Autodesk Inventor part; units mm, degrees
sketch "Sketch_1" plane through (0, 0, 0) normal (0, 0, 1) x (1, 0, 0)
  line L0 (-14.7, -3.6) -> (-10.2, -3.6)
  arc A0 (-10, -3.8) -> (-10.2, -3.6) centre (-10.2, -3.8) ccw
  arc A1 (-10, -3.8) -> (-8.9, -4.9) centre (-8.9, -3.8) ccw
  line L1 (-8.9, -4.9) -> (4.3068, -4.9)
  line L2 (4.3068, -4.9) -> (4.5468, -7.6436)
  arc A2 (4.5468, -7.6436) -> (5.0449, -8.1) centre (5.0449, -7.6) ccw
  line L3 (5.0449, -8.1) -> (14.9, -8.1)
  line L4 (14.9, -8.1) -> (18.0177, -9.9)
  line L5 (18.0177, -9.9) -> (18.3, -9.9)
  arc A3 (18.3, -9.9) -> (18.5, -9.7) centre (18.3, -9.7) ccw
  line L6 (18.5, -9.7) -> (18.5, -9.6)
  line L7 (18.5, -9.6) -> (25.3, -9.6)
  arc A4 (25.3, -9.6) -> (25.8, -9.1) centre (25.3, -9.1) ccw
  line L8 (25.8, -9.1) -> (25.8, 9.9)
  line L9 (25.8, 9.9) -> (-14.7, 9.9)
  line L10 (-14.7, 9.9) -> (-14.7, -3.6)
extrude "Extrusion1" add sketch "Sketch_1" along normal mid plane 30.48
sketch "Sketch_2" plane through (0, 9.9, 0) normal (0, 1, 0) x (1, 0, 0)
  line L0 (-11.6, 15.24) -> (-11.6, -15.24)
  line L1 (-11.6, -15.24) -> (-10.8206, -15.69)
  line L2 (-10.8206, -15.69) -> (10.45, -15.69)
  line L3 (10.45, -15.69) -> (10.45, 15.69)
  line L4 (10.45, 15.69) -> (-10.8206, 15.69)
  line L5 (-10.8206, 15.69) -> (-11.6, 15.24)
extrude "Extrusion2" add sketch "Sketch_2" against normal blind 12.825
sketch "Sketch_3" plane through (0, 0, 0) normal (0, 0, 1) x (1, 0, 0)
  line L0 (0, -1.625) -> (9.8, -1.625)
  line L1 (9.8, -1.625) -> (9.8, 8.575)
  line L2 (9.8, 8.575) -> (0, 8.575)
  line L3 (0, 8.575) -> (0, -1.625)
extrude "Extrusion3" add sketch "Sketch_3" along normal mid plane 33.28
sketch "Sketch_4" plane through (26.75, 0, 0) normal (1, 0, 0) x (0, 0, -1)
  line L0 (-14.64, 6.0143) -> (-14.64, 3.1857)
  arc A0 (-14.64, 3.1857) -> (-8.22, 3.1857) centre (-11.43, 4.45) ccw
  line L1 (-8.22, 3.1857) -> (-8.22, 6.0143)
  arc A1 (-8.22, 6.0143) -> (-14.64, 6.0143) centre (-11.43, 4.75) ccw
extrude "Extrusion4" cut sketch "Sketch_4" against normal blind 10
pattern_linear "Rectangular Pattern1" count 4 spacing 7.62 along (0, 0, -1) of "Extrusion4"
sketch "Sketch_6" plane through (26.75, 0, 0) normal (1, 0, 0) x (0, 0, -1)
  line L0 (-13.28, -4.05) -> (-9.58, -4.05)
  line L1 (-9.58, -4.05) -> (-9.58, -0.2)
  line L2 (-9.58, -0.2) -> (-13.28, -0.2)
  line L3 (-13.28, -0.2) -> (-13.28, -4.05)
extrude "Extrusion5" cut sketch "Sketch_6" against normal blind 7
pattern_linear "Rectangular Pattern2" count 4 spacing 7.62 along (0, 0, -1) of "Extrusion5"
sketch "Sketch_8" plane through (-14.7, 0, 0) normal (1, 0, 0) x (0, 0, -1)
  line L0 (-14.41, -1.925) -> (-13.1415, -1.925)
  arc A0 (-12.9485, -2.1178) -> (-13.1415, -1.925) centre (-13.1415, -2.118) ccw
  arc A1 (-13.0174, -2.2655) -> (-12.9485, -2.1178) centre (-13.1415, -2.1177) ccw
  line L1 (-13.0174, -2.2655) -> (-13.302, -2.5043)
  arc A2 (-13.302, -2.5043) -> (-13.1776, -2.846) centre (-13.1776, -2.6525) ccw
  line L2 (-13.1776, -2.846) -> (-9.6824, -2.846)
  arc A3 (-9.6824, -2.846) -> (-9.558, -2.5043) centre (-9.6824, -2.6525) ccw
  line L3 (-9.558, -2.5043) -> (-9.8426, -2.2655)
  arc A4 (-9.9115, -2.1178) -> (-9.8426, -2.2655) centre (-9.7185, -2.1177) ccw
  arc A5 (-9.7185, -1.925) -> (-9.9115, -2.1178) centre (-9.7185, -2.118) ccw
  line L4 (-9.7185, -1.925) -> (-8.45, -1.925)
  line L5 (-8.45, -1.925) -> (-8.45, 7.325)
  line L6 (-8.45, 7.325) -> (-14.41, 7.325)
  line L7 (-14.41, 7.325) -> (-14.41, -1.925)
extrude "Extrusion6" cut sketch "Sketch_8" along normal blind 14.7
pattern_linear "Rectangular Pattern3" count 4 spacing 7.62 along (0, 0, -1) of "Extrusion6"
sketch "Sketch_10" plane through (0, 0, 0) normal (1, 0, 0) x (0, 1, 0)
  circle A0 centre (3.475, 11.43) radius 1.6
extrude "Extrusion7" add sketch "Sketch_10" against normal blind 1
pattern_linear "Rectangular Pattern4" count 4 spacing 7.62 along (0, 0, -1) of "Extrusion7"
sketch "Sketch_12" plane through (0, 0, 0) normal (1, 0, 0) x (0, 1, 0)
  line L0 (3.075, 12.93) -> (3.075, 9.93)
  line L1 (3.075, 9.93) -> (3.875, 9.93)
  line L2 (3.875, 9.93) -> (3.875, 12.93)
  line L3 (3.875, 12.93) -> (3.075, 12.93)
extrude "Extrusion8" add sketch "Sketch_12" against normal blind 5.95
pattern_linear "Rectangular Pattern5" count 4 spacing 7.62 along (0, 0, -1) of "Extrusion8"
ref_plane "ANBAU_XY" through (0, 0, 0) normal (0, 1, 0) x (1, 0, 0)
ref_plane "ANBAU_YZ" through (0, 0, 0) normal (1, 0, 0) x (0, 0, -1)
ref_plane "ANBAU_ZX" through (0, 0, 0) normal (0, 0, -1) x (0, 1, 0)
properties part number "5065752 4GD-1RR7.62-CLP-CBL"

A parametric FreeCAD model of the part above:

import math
import FreeCAD as App
import Part
import Sketcher

V = App.Vector
Q = App.Units.Quantity

doc = App.newDocument("Part")
params = doc.addObject("Spreadsheet::Sheet", "Params")
for row, (alias, value) in enumerate([
    ("sketch1_radius", "0.2 mm"),
    ("sketch1_radius2", "1.1 mm"),
    ("sketch1_radius3", "0.5 mm"),
    ("sketch1_height", "19 mm"),
    ("sketch1_width", "4.5 mm"),
    ("pad1_length", "30.48 mm"),
    ("sketch2_length", "0.9 mm"),
    ("sketch2_height", "30.48 mm"),
    ("pad2_length", "12.825 mm"),
    ("sketch3_width", "9.8 mm"),
    ("sketch3_height", "10.2 mm"),
    ("pad3_length", "33.28 mm"),
    ("sketch4_radius", "3.45 mm"),
    ("pocket1_length", "10 mm"),
    ("linearpattern_pitch", "7.62 mm"),
    ("sketch5_height", "3.7 mm"),
    ("sketch5_width", "3.85 mm"),
    ("pocket2_length", "7 mm"),
    ("linearpattern2_pitch", "7.62 mm"),
    ("sketch6_width", "9.25 mm"),
    ("sketch6_height", "5.96 mm"),
    ("pocket3_length", "14.7 mm"),
    ("linearpattern3_pitch", "7.62 mm"),
    ("sketch7_diameter", "3.2 mm"),
    ("pad4_length", "1 mm"),
    ("linearpattern4_pitch", "7.62 mm"),
    ("sketch8_height", "3 mm"),
    ("sketch8_width", "0.8 mm"),
    ("pad5_length", "5.95 mm"),
    ("linearpattern5_pitch", "7.62 mm"),
], start=1):
    params.set(f"A{row}", alias)
    params.set(f"B{row}", "=" + value)
    params.setAlias(f"B{row}", alias)

body = doc.addObject("PartDesign::Body", "Body")

sketch1 = body.newObject("Sketcher::SketchObject", "Sketch")
sketch1.AttachmentSupport = (doc.getObject("XY_Plane"), [""])
sketch1.MapMode = "FlatFace"
sketch1.addGeometry([
    Part.LineSegment(V(-14.7, 9.9, 0), V(-14.7, -3.6, 0)),
    Part.LineSegment(V(-14.7, -3.6, 0), V(-10.2, -3.6, 0)),
    Part.ArcOfCircle(Part.Circle(V(-10.2, -3.8, 0), V(0, 0, 1), 0.2), math.radians(0), math.radians(90)),
    Part.ArcOfCircle(Part.Circle(V(-8.9, -3.8, 0), V(0, 0, 1), 1.1), math.radians(180), math.radians(270)),
    Part.LineSegment(V(-8.9, -4.9, 0), V(4.31, -4.9, 0)),
    Part.LineSegment(V(4.31, -4.9, 0), V(4.55, -7.64, 0)),
    Part.ArcOfCircle(Part.Circle(V(5.04, -7.6, 0), V(0, 0, 1), 0.5), math.radians(-175), math.radians(-90)),
    Part.LineSegment(V(5.04, -8.1, 0), V(14.9, -8.1, 0)),
    Part.LineSegment(V(14.9, -8.1, 0), V(18.02, -9.9, 0)),
    Part.LineSegment(V(18.02, -9.9, 0), V(18.3, -9.9, 0)),
    Part.ArcOfCircle(Part.Circle(V(18.3, -9.7, 0), V(0, 0, 1), 0.2), math.radians(-90), math.radians(0)),
    Part.LineSegment(V(18.5, -9.7, 0), V(18.5, -9.6, 0)),
    Part.LineSegment(V(18.5, -9.6, 0), V(25.3, -9.6, 0)),
    Part.ArcOfCircle(Part.Circle(V(25.3, -9.1, 0), V(0, 0, 1), 0.5), math.radians(-90), math.radians(0)),
    Part.LineSegment(V(25.8, -9.1, 0), V(25.8, 9.9, 0)),
    Part.LineSegment(V(25.8, 9.9, 0), V(-14.7, 9.9, 0)),
], False)
sketch1.addConstraint([
    Sketcher.Constraint("Coincident", 0, 2, 1, 1),
    Sketcher.Constraint("Tangent", 1, 2, 2, 2),
    Sketcher.Constraint("Tangent", 2, 1, 3, 1),
    Sketcher.Constraint("Tangent", 3, 2, 4, 1),
    Sketcher.Constraint("Coincident", 4, 2, 5, 1),
    Sketcher.Constraint("Tangent", 5, 2, 6, 1),
    Sketcher.Constraint("Tangent", 6, 2, 7, 1),
    Sketcher.Constraint("Coincident", 7, 2, 8, 1),
    Sketcher.Constraint("Coincident", 8, 2, 9, 1),
    Sketcher.Constraint("Tangent", 9, 2, 10, 1),
    Sketcher.Constraint("Tangent", 10, 2, 11, 1),
    Sketcher.Constraint("Coincident", 11, 2, 12, 1),
    Sketcher.Constraint("Tangent", 12, 2, 13, 1),
    Sketcher.Constraint("Tangent", 13, 2, 14, 1),
    Sketcher.Constraint("Coincident", 14, 2, 15, 1),
    Sketcher.Constraint("Coincident", 15, 2, 0, 1),
    Sketcher.Constraint("Vertical", 0),
    Sketcher.Constraint("Horizontal", 1),
    Sketcher.Constraint("Horizontal", 4),
    Sketcher.Constraint("Horizontal", 7),
    Sketcher.Constraint("Horizontal", 9),
    Sketcher.Constraint("Vertical", 11),
    Sketcher.Constraint("Horizontal", 12),
    Sketcher.Constraint("Vertical", 14),
    Sketcher.Constraint("Horizontal", 15),
    Sketcher.Constraint("Equal", 2, 10),
    Sketcher.Constraint("Equal", 6, 13),
    Sketcher.Constraint("Horizontal", 2, 3, 3, 3),
    Sketcher.Constraint("Radius", 2, 0.2),
    Sketcher.Constraint("Radius", 3, 1.1),
    Sketcher.Constraint("Radius", 6, 0.5),
    Sketcher.Constraint("DistanceY", 14, 1, 14, 2, 19.0),
    Sketcher.Constraint("Angle", 5, Q("-85.0007 deg")),
    Sketcher.Constraint("Angle", 8, Q("-30 deg")),
    Sketcher.Constraint("DistanceX", 1, 1, 1, 2, 4.5),
    Sketcher.Constraint("DistanceX", 12, 1, 12, 2, 6.8),
    Sketcher.Constraint("DistanceX", 15, 2, 15, 1, 40.5),
    Sketcher.Constraint("DistanceY", 0, 2, 0, 1, 13.5),
    Sketcher.Constraint("DistanceY", 11, 1, 11, 2, 0.1),
    Sketcher.Constraint("DistanceX", 2, 1, -1, 1, 10.0),
    Sketcher.Constraint("DistanceY", 6, 3, 0, 2, 4.0),
    Sketcher.Constraint("DistanceY", 2, 3, -1, 1, 3.8),
    Sketcher.Constraint("DistanceX", -1, 1, 7, 2, 14.9),
    Sketcher.Constraint("DistanceX", 7, 1, 7, 2, 9.855),
])
sketch1.setExpression("Constraints[28]", "Params.sketch1_radius")
sketch1.setExpression("Constraints[29]", "Params.sketch1_radius2")
sketch1.setExpression("Constraints[30]", "Params.sketch1_radius3")
sketch1.setExpression("Constraints[31]", "Params.sketch1_height")
sketch1.setExpression("Constraints[34]", "Params.sketch1_width")
pad1 = body.newObject("PartDesign::Pad", "Pad")
pad1.Profile = sketch1
pad1.setExpression("Length", "Params.pad1_length")
pad1.Midplane = True

sketch2 = body.newObject("Sketcher::SketchObject", "Sketch001")
sketch2.AttachmentSupport = (doc.getObject("XZ_Plane"), [""])
sketch2.MapMode = "FlatFace"
sketch2.AttachmentOffset = App.Placement(V(0, 0, -9.9), App.Rotation())
sketch2.addGeometry([
    Part.LineSegment(V(-10.8, -15.7, 0), V(-11.6, -15.2, 0)),
    Part.LineSegment(V(-11.6, -15.2, 0), V(-11.6, 15.2, 0)),
    Part.LineSegment(V(-11.6, 15.2, 0), V(-10.8, 15.7, 0)),
    Part.LineSegment(V(-10.8, 15.7, 0), V(10.4, 15.7, 0)),
    Part.LineSegment(V(10.4, 15.7, 0), V(10.4, -15.7, 0)),
    Part.LineSegment(V(10.4, -15.7, 0), V(-10.8, -15.7, 0)),
], False)
sketch2.addConstraint([
    Sketcher.Constraint("Coincident", 0, 2, 1, 1),
    Sketcher.Constraint("Coincident", 1, 2, 2, 1),
    Sketcher.Constraint("Coincident", 2, 2, 3, 1),
    Sketcher.Constraint("Coincident", 3, 2, 4, 1),
    Sketcher.Constraint("Coincident", 4, 2, 5, 1),
    Sketcher.Constraint("Coincident", 5, 2, 0, 1),
    Sketcher.Constraint("Vertical", 1),
    Sketcher.Constraint("Horizontal", 3),
    Sketcher.Constraint("Vertical", 4),
    Sketcher.Constraint("Horizontal", 5),
    Sketcher.Constraint("Symmetric", 2, 2, 5, 2, -1),
    Sketcher.Constraint("Equal", 0, 2),
    Sketcher.Constraint("Angle", 0, Q("149.9993 deg")),
    Sketcher.Constraint("Distance", 0, 0.9),
    Sketcher.Constraint("DistanceY", 1, 1, 1, 2, 30.48),
    Sketcher.Constraint("DistanceX", 0, 2, -1, 1, 11.6),
    Sketcher.Constraint("DistanceX", -1, 1, 3, 2, 10.45),
])
sketch2.setExpression("Constraints[13]", "Params.sketch2_length")
sketch2.setExpression("Constraints[14]", "Params.sketch2_height")
pad2 = body.newObject("PartDesign::Pad", "Pad001")
pad2.Profile = sketch2
pad2.setExpression("Length", "Params.pad2_length")

sketch3 = body.newObject("Sketcher::SketchObject", "Sketch002")
sketch3.AttachmentSupport = (doc.getObject("XY_Plane"), [""])
sketch3.MapMode = "FlatFace"
sketch3.addGeometry([
    Part.LineSegment(V(0, 9, 0), V(0, -2, 0)),
    Part.LineSegment(V(0, -2, 0), V(10, -2, 0)),
    Part.LineSegment(V(10, -2, 0), V(10, 9, 0)),
    Part.LineSegment(V(10, 9, 0), V(0, 9, 0)),
], False)
sketch3.addConstraint([
    Sketcher.Constraint("Coincident", 0, 2, 1, 1),
    Sketcher.Constraint("Coincident", 1, 2, 2, 1),
    Sketcher.Constraint("Coincident", 2, 2, 3, 1),
    Sketcher.Constraint("Coincident", 3, 2, 0, 1),
    Sketcher.Constraint("Vertical", 0),
    Sketcher.Constraint("Horizontal", 1),
    Sketcher.Constraint("Vertical", 2),
    Sketcher.Constraint("Horizontal", 3),
    Sketcher.Constraint("PointOnObject", 0, 2, -2),
    Sketcher.Constraint("DistanceX", 1, 1, 1, 2, 9.8),
    Sketcher.Constraint("DistanceY", 0, 2, 0, 1, 10.2),
    Sketcher.Constraint("DistanceY", 0, 2, -1, 1, 1.625),
])
sketch3.setExpression("Constraints[9]", "Params.sketch3_width")
sketch3.setExpression("Constraints[10]", "Params.sketch3_height")
pad3 = body.newObject("PartDesign::Pad", "Pad002")
pad3.Profile = sketch3
pad3.setExpression("Length", "Params.pad3_length")
pad3.Midplane = True

sketch4 = body.newObject("Sketcher::SketchObject", "Sketch003")
sketch4.AttachmentSupport = (doc.getObject("YZ_Plane"), [""])
sketch4.MapMode = "FlatFace"
sketch4.AttachmentOffset = App.Placement(V(0, 0, 26.75), App.Rotation())
sketch4.addGeometry([
    Part.ArcOfCircle(Part.Circle(V(4.8, 11.4, 0), V(0, 0, 1), 3.5), math.radians(-69), math.radians(69)),
    Part.LineSegment(V(6, 14.6, 0), V(3.2, 14.6, 0)),
    Part.ArcOfCircle(Part.Circle(V(4.5, 11.4, 0), V(0, 0, 1), 3.5), math.radians(111), math.radians(249)),
    Part.LineSegment(V(3.2, 8.2, 0), V(6, 8.2, 0)),
], False)
sketch4.addConstraint([
    Sketcher.Constraint("Coincident", 0, 2, 1, 1),
    Sketcher.Constraint("Coincident", 1, 2, 2, 1),
    Sketcher.Constraint("Coincident", 2, 2, 3, 1),
    Sketcher.Constraint("Coincident", 3, 2, 0, 1),
    Sketcher.Constraint("Horizontal", 1),
    Sketcher.Constraint("Horizontal", 3),
    Sketcher.Constraint("Equal", 0, 2),
    Sketcher.Constraint("Horizontal", 0, 3, 2, 3),
    Sketcher.Constraint("Vertical", 1, 2, 2, 2),
    Sketcher.Constraint("Radius", 0, 3.45),
    Sketcher.Constraint("DistanceX", 2, 3, 0, 3, 0.3),
    Sketcher.Constraint("DistanceX", -1, 1, 0, 3, 4.75),
    Sketcher.Constraint("DistanceY", -1, 1, 0, 3, 11.43),
    Sketcher.Constraint("DistanceY", -1, 1, 0, 2, 14.64),
])
sketch4.setExpression("Constraints[9]", "Params.sketch4_radius")
pocket1 = body.newObject("PartDesign::Pocket", "Pocket")
pocket1.Profile = sketch4
pocket1.setExpression("Length", "Params.pocket1_length")
doc.recompute()

linearpattern = body.newObject("PartDesign::LinearPattern", "LinearPattern")
linearpattern.Originals = [pocket1]
linearpattern.Direction = (doc.getObject("Z_Axis"), [""])
linearpattern.Mode = "offset"
linearpattern.setExpression("Offset", "Params.linearpattern_pitch")
linearpattern.Occurrences = 4
linearpattern.Reversed = True
body.Tip = linearpattern

sketch5 = body.newObject("Sketcher::SketchObject", "Sketch004")
sketch5.AttachmentSupport = (doc.getObject("YZ_Plane"), [""])
sketch5.MapMode = "FlatFace"
sketch5.AttachmentOffset = App.Placement(V(0, 0, 26.75), App.Rotation())
sketch5.addGeometry([
    Part.LineSegment(V(-0.2, 13.3, 0), V(-4, 13.3, 0)),
    Part.LineSegment(V(-4, 13.3, 0), V(-4, 9.6, 0)),
    Part.LineSegment(V(-4, 9.6, 0), V(-0.2, 9.6, 0)),
    Part.LineSegment(V(-0.2, 9.6, 0), V(-0.2, 13.3, 0)),
], False)
sketch5.addConstraint([
    Sketcher.Constraint("Coincident", 0, 2, 1, 1),
    Sketcher.Constraint("Coincident", 1, 2, 2, 1),
    Sketcher.Constraint("Coincident", 2, 2, 3, 1),
    Sketcher.Constraint("Coincident", 3, 2, 0, 1),
    Sketcher.Constraint("Horizontal", 0),
    Sketcher.Constraint("Vertical", 1),
    Sketcher.Constraint("Horizontal", 2),
    Sketcher.Constraint("Vertical", 3),
    Sketcher.Constraint("DistanceY", 1, 2, 1, 1, 3.7),
    Sketcher.Constraint("DistanceX", 0, 2, 0, 1, 3.85),
    Sketcher.Constraint("DistanceX", 2, 2, -1, 1, 0.2),
    Sketcher.Constraint("DistanceY", -1, 1, 0, 2, 13.28),
])
sketch5.setExpression("Constraints[8]", "Params.sketch5_height")
sketch5.setExpression("Constraints[9]", "Params.sketch5_width")
pocket2 = body.newObject("PartDesign::Pocket", "Pocket001")
pocket2.Profile = sketch5
pocket2.setExpression("Length", "Params.pocket2_length")
doc.recompute()

linearpattern2 = body.newObject("PartDesign::LinearPattern", "LinearPattern001")
linearpattern2.Originals = [pocket2]
linearpattern2.Direction = (doc.getObject("Z_Axis"), [""])
linearpattern2.Mode = "offset"
linearpattern2.setExpression("Offset", "Params.linearpattern2_pitch")
linearpattern2.Occurrences = 4
linearpattern2.Reversed = True
body.Tip = linearpattern2

sketch6 = body.newObject("Sketcher::SketchObject", "Sketch005")
sketch6.AttachmentSupport = (doc.getObject("YZ_Plane"), [""])
sketch6.MapMode = "FlatFace"
sketch6.AttachmentOffset = App.Placement(V(0, 0, -14.7), App.Rotation())
sketch6.addGeometry([
    Part.LineSegment(V(7.33, 14.41, 0), V(-1.93, 14.41, 0)),
    Part.LineSegment(V(-1.93, 14.41, 0), V(-1.93, 13.14, 0)),
    Part.ArcOfCircle(Part.Circle(V(-2.12, 13.14, 0), V(0, 0, 1), 0.19), math.radians(-90), math.radians(0)),
    Part.ArcOfCircle(Part.Circle(V(-2.12, 13.14, 0), V(0, 0, 1), 0.19), math.radians(-140), math.radians(-90)),
    Part.LineSegment(V(-2.27, 13.02, 0), V(-2.5, 13.3, 0)),
    Part.ArcOfCircle(Part.Circle(V(-2.65, 13.18, 0), V(0, 0, 1), 0.19), math.radians(40), math.radians(180)),
    Part.LineSegment(V(-2.85, 13.18, 0), V(-2.85, 9.68, 0)),
    Part.ArcOfCircle(Part.Circle(V(-2.65, 9.68, 0), V(0, 0, 1), 0.19), math.radians(180), math.radians(320)),
    Part.LineSegment(V(-2.5, 9.56, 0), V(-2.27, 9.84, 0)),
    Part.ArcOfCircle(Part.Circle(V(-2.12, 9.72, 0), V(0, 0, 1), 0.19), math.radians(90), math.radians(140)),
    Part.ArcOfCircle(Part.Circle(V(-2.12, 9.72, 0), V(0, 0, 1), 0.19), math.radians(0), math.radians(90)),
    Part.LineSegment(V(-1.93, 9.72, 0), V(-1.93, 8.45, 0)),
    Part.LineSegment(V(-1.93, 8.45, 0), V(7.33, 8.45, 0)),
    Part.LineSegment(V(7.33, 8.45, 0), V(7.33, 14.41, 0)),
], False)
sketch6.addConstraint([
    Sketcher.Constraint("Coincident", 0, 2, 1, 1),
    Sketcher.Constraint("Tangent", 1, 2, 2, 2),
    Sketcher.Constraint("Coincident", 2, 1, 3, 2),
    Sketcher.Constraint("Tangent", 3, 1, 4, 1),
    Sketcher.Constraint("Tangent", 4, 2, 5, 1),
    Sketcher.Constraint("Tangent", 5, 2, 6, 1),
    Sketcher.Constraint("Tangent", 6, 2, 7, 1),
    Sketcher.Constraint("Tangent", 7, 2, 8, 1),
    Sketcher.Constraint("Tangent", 8, 2, 9, 2),
    Sketcher.Constraint("Coincident", 9, 1, 10, 2),
    Sketcher.Constraint("Tangent", 10, 1, 11, 1),
    Sketcher.Constraint("Coincident", 11, 2, 12, 1),
    Sketcher.Constraint("Coincident", 12, 2, 13, 1),
    Sketcher.Constraint("Coincident", 13, 2, 0, 1),
    Sketcher.Constraint("Horizontal", 0),
    Sketcher.Constraint("Vertical", 1),
    Sketcher.Constraint("Vertical", 6),
    Sketcher.Constraint("Vertical", 11),
    Sketcher.Constraint("Horizontal", 12),
    Sketcher.Constraint("Vertical", 13),
    Sketcher.Constraint("Coincident", 3, 3, 2, 3),
    Sketcher.Constraint("Coincident", 10, 3, 9, 3),
    Sketcher.Constraint("Equal", 5, 7),
    Sketcher.Constraint("Equal", 3, 9),
    Sketcher.Constraint("Vertical", 3, 3, 9, 3),
    Sketcher.Constraint("Vertical", 10, 3, 2, 1),
    Sketcher.Constraint("Vertical", 4, 2, 7, 2),
    Sketcher.Constraint("Vertical", 2, 1, 9, 1),
    Sketcher.Constraint("Equal", 1, 11),
    Sketcher.Constraint("Angle", 4, Q("129.999 deg")),
    Sketcher.Constraint("Radius", 2, 0.193),
    Sketcher.Constraint("DistanceX", 0, 2, 0, 1, 9.25),
    Sketcher.Constraint("DistanceY", 13, 1, 13, 2, 5.96),
    Sketcher.Constraint("Radius", 5, 0.1935),
    Sketcher.Constraint("DistanceY", -1, 1, 0, 2, 14.41),
    Sketcher.Constraint("DistanceY", 1, 2, 1, 1, 1.2685),
    Sketcher.Constraint("DistanceY", 6, 2, 6, 1, 3.4952),
    Sketcher.Constraint("DistanceX", 2, 3, -1, 1, 2.118),
])
sketch6.setExpression("Constraints[31]", "Params.sketch6_width")
sketch6.setExpression("Constraints[32]", "Params.sketch6_height")
pocket3 = body.newObject("PartDesign::Pocket", "Pocket002")
pocket3.Profile = sketch6
pocket3.setExpression("Length", "Params.pocket3_length")
pocket3.Reversed = True
doc.recompute()

linearpattern3 = body.newObject("PartDesign::LinearPattern", "LinearPattern002")
linearpattern3.Originals = [pocket3]
linearpattern3.Direction = (doc.getObject("Z_Axis"), [""])
linearpattern3.Mode = "offset"
linearpattern3.setExpression("Offset", "Params.linearpattern3_pitch")
linearpattern3.Occurrences = 4
linearpattern3.Reversed = True
body.Tip = linearpattern3

sketch7 = body.newObject("Sketcher::SketchObject", "Sketch006")
sketch7.AttachmentSupport = (doc.getObject("YZ_Plane"), [""])
sketch7.MapMode = "FlatFace"
sketch7.addGeometry(Part.Circle(V(3.5, 11.4, 0), V(0, 0, 1), 1.6), False)
sketch7.addConstraint([
    Sketcher.Constraint("Diameter", 0, 3.2),
    Sketcher.Constraint("DistanceY", -1, 1, 0, 3, 11.43),
    Sketcher.Constraint("DistanceX", -1, 1, 0, 3, 3.475),
])
sketch7.setExpression("Constraints[0]", "Params.sketch7_diameter")
pad4 = body.newObject("PartDesign::Pad", "Pad003")
pad4.Profile = sketch7
pad4.setExpression("Length", "Params.pad4_length")
pad4.Reversed = True
doc.recompute()

linearpattern4 = body.newObject("PartDesign::LinearPattern", "LinearPattern003")
linearpattern4.Originals = [pad4]
linearpattern4.Direction = (doc.getObject("Z_Axis"), [""])
linearpattern4.Mode = "offset"
linearpattern4.setExpression("Offset", "Params.linearpattern4_pitch")
linearpattern4.Occurrences = 4
linearpattern4.Reversed = True
body.Tip = linearpattern4

sketch8 = body.newObject("Sketcher::SketchObject", "Sketch007")
sketch8.AttachmentSupport = (doc.getObject("YZ_Plane"), [""])
sketch8.MapMode = "FlatFace"
sketch8.addGeometry([
    Part.LineSegment(V(3.9, 12.9, 0), V(3.1, 12.9, 0)),
    Part.LineSegment(V(3.1, 12.9, 0), V(3.1, 9.9, 0)),
    Part.LineSegment(V(3.1, 9.9, 0), V(3.9, 9.9, 0)),
    Part.LineSegment(V(3.9, 9.9, 0), V(3.9, 12.9, 0)),
], False)
sketch8.addConstraint([
    Sketcher.Constraint("Coincident", 0, 2, 1, 1),
    Sketcher.Constraint("Coincident", 1, 2, 2, 1),
    Sketcher.Constraint("Coincident", 2, 2, 3, 1),
    Sketcher.Constraint("Coincident", 3, 2, 0, 1),
    Sketcher.Constraint("Horizontal", 0),
    Sketcher.Constraint("Vertical", 1),
    Sketcher.Constraint("Horizontal", 2),
    Sketcher.Constraint("Vertical", 3),
    Sketcher.Constraint("DistanceY", 1, 2, 1, 1, 3.0),
    Sketcher.Constraint("DistanceX", 0, 2, 0, 1, 0.8),
    Sketcher.Constraint("DistanceY", -1, 1, 0, 2, 12.93),
    Sketcher.Constraint("DistanceX", -1, 1, 0, 2, 3.075),
])
sketch8.setExpression("Constraints[8]", "Params.sketch8_height")
sketch8.setExpression("Constraints[9]", "Params.sketch8_width")
pad5 = body.newObject("PartDesign::Pad", "Pad004")
pad5.Profile = sketch8
pad5.setExpression("Length", "Params.pad5_length")
pad5.Reversed = True
doc.recompute()

linearpattern5 = body.newObject("PartDesign::LinearPattern", "LinearPattern004")
linearpattern5.Originals = [pad5]
linearpattern5.Direction = (doc.getObject("Z_Axis"), [""])
linearpattern5.Mode = "offset"
linearpattern5.setExpression("Offset", "Params.linearpattern5_pitch")
linearpattern5.Occurrences = 4
linearpattern5.Reversed = True
body.Tip = linearpattern5

doc.recompute()
